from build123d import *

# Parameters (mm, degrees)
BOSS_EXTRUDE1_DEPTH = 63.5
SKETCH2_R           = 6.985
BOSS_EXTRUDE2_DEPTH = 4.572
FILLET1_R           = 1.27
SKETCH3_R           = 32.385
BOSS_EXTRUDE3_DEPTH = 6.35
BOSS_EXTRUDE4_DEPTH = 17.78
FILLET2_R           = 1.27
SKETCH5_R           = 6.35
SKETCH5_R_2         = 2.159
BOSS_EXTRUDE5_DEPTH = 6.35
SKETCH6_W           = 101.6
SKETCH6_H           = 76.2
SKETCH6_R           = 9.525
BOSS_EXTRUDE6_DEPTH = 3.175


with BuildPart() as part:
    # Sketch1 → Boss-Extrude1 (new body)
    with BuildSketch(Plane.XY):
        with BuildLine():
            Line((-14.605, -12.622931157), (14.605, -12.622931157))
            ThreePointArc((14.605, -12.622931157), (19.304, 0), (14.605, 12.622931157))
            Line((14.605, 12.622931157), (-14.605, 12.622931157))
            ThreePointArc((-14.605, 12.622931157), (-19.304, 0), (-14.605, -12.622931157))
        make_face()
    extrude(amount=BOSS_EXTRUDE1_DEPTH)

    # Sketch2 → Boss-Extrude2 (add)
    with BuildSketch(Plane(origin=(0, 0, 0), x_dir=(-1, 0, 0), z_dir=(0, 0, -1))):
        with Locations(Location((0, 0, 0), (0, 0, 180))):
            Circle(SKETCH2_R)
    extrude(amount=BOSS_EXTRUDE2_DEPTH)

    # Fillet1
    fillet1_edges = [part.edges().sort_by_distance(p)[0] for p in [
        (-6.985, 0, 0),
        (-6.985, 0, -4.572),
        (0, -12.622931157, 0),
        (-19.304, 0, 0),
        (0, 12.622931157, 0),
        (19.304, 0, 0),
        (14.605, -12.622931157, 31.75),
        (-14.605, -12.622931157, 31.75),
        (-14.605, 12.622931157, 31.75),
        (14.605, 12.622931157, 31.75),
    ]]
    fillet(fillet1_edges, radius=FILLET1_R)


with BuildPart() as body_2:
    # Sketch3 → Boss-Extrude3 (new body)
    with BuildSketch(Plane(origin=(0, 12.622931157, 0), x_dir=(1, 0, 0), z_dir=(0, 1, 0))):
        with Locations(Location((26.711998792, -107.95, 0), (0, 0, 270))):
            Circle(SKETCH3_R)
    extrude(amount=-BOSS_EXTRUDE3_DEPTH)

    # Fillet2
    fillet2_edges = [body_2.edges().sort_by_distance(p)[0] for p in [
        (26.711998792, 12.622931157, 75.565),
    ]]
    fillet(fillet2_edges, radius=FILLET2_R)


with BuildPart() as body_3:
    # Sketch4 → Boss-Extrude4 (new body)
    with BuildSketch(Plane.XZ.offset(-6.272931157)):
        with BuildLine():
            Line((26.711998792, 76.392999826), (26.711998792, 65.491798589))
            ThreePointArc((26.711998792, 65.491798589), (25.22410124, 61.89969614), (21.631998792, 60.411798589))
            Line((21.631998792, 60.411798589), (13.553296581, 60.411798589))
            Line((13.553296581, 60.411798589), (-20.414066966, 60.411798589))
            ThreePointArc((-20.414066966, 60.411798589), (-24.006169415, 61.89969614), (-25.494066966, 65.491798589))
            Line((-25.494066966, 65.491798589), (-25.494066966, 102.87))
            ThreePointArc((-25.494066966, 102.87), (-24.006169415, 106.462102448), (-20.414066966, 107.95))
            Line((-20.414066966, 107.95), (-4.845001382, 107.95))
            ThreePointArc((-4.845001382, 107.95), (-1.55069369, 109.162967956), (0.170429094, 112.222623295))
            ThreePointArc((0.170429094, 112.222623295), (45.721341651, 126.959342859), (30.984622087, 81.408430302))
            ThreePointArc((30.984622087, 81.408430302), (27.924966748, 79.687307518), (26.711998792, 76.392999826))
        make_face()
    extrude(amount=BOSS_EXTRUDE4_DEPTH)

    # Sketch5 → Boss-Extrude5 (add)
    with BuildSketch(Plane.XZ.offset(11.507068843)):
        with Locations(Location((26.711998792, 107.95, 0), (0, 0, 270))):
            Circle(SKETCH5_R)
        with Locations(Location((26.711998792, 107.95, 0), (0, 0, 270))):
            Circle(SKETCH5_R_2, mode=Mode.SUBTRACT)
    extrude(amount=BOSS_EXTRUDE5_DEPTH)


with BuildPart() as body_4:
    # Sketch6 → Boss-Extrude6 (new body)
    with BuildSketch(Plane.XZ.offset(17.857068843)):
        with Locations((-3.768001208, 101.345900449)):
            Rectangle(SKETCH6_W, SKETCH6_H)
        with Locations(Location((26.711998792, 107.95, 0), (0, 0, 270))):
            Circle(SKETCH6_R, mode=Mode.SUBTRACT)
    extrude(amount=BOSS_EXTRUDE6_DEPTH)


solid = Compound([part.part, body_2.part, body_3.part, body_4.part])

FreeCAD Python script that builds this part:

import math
import FreeCAD as App
import Part
import Sketcher
Q = App.Units.Quantity


def edges_at(feature, points):
    """Names of the edges that pass closest to the given points."""
    edges = feature.Shape.Edges
    near = lambda p: min(range(len(edges)), key=lambda i: edges[i].distToShape(Part.Vertex(*p))[0])
    return sorted({f"Edge{near(p) + 1}" for p in points})

doc = App.newDocument("Part")
body = doc.addObject("PartDesign::Body", "Body")

sketch1 = body.newObject("Sketcher::SketchObject", "Sketch")
sketch1.AttachmentSupport = (doc.getObject("XY_Plane"), [""])
sketch1.MapMode = "FlatFace"
sketch1.addGeometry([
    Part.LineSegment(App.Vector(-15, -13, 0), App.Vector(15, -13, 0)),
    Part.ArcOfCircle(Part.Circle(App.Vector(0, 0, 0), App.Vector(0, 0, 1), 19), math.radians(-41), math.radians(41)),
    Part.LineSegment(App.Vector(15, 13, 0), App.Vector(-15, 13, 0)),
    Part.ArcOfCircle(Part.Circle(App.Vector(0, 0, 0), App.Vector(0, 0, 1), 19), math.radians(139), math.radians(221)),
], False)
sketch1.addConstraint([
    Sketcher.Constraint("Coincident", 0, 2, 1, 1),
    Sketcher.Constraint("Coincident", 1, 2, 2, 1),
    Sketcher.Constraint("Coincident", 2, 2, 3, 1),
    Sketcher.Constraint("Coincident", 3, 2, 0, 1),
    Sketcher.Constraint("Horizontal", 0),
    Sketcher.Constraint("Horizontal", 2),
    Sketcher.Constraint("Coincident", 1, 3, -1, 1),
    Sketcher.Constraint("Coincident", 3, 3, -1, 1),
    Sketcher.Constraint("Equal", 1, 3),
    Sketcher.Constraint("Vertical", 0, 2, 1, 2),
    Sketcher.Constraint("Radius", 1, Q("0.76 in")),
    Sketcher.Constraint("DistanceX", 0, 1, 0, 2, Q("1.15 in")),
])
pad1 = body.newObject("PartDesign::Pad", "Pad")
pad1.Profile = sketch1
pad1.Length = Q("2.5 in")

sketch2 = body.newObject("Sketcher::SketchObject", "Sketch001")
sketch2.AttachmentSupport = (doc.getObject("XY_Plane"), [""])
sketch2.MapMode = "FlatFace"
sketch2.addGeometry(Part.Circle(App.Vector(0, 0, 0), App.Vector(0, 0, 1), 7), False)
sketch2.addConstraint([
    Sketcher.Constraint("Coincident", 0, 3, -1, 1),
    Sketcher.Constraint("Diameter", 0, Q("0.55 in")),
])
pad2 = body.newObject("PartDesign::Pad", "Pad001")
pad2.Profile = sketch2
pad2.Length = Q("0.18 in")
pad2.Reversed = True
doc.recompute()

fillet = body.newObject("PartDesign::Fillet", "Fillet")
fillet.Base = (pad2, edges_at(pad2, [
    (-6.985, 0, 0),
    (-6.985, 0, -4.572),
    (0, -12.623, 0),
    (-19.304, 0, 0),
    (0, 12.623, 0),
    (19.304, 0, 0),
    (14.605, -12.623, 31.75),
    (-14.605, -12.623, 31.75),
    (-14.605, 12.623, 31.75),
    (14.605, 12.623, 31.75),
]))
fillet.Radius = Q("0.05 in")
body2 = doc.addObject("PartDesign::Body", "Body001")

sketch3 = body2.newObject("Sketcher::SketchObject", "Sketch002")
sketch3.AttachmentSupport = (doc.getObject("XZ_Plane001"), [""])
sketch3.MapMode = "FlatFace"
sketch3.AttachmentOffset = App.Placement(App.Vector(0, 0, -12.622931), App.Rotation())
sketch3.addGeometry(Part.Circle(App.Vector(27, 108, 0), App.Vector(0, 0, 1), 32), False)
sketch3.addConstraint([
    Sketcher.Constraint("Diameter", 0, Q("2.55 in")),
    Sketcher.Constraint("DistanceY", -1, 1, 0, 3, Q("4.25 in")),
    Sketcher.Constraint("DistanceX", -1, 1, 0, 3, Q("26.711999 mm")),
])
pad3 = body2.newObject("PartDesign::Pad", "Pad002")
pad3.Profile = sketch3
pad3.Length = Q("0.25 in")
doc.recompute()

fillet2 = body2.newObject("PartDesign::Fillet", "Fillet001")
fillet2.Base = (pad3, edges_at(pad3, [(26.712, 12.623, 75.565)]))
fillet2.Radius = Q("0.05 in")
body3 = doc.addObject("PartDesign::Body", "Body002")

sketch4 = body3.newObject("Sketcher::SketchObject", "Sketch003")
sketch4.AttachmentSupport = (doc.getObject("XZ_Plane002"), [""])
sketch4.MapMode = "FlatFace"
sketch4.AttachmentOffset = App.Placement(App.Vector(0, 0, -6.272931), App.Rotation())
sketch4.addGeometry([
    Part.LineSegment(App.Vector(27, 65, 0), App.Vector(27, 76, 0)),
    Part.ArcOfCircle(Part.Circle(App.Vector(32, 76, 0), App.Vector(0, 0, 1), 5), math.radians(99), math.radians(180)),
    Part.ArcOfCircle(Part.Circle(App.Vector(27, 108, 0), App.Vector(0, 0, 1), 27), math.radians(-81), math.radians(171)),
    Part.ArcOfCircle(Part.Circle(App.Vector(-5, 113, 0), App.Vector(0, 0, 1), 5), math.radians(-90), math.radians(-9)),
    Part.LineSegment(App.Vector(-5, 108, 0), App.Vector(-20, 108, 0)),
    Part.ArcOfCircle(Part.Circle(App.Vector(-20, 103, 0), App.Vector(0, 0, 1), 5), math.radians(90), math.radians(180)),
    Part.LineSegment(App.Vector(-25, 103, 0), App.Vector(-25, 65, 0)),
    Part.ArcOfCircle(Part.Circle(App.Vector(-20, 65, 0), App.Vector(0, 0, 1), 5), math.radians(180), math.radians(270)),
    Part.LineSegment(App.Vector(-20, 60, 0), App.Vector(22, 60, 0)),
    Part.ArcOfCircle(Part.Circle(App.Vector(22, 65, 0), App.Vector(0, 0, 1), 5), math.radians(-90), math.radians(0)),
], False)
sketch4.addConstraint([
    Sketcher.Constraint("Tangent", 0, 2, 1, 2),
    Sketcher.Constraint("Tangent", 1, 1, 2, 1),
    Sketcher.Constraint("Tangent", 2, 2, 3, 2),
    Sketcher.Constraint("Tangent", 3, 1, 4, 1),
    Sketcher.Constraint("Tangent", 4, 2, 5, 1),
    Sketcher.Constraint("Tangent", 5, 2, 6, 1),
    Sketcher.Constraint("Tangent", 6, 2, 7, 1),
    Sketcher.Constraint("Tangent", 7, 2, 8, 1),
    Sketcher.Constraint("Tangent", 8, 2, 9, 1),
    Sketcher.Constraint("Tangent", 9, 2, 0, 1),
    Sketcher.Constraint("Vertical", 0),
    Sketcher.Constraint("Horizontal", 4),
    Sketcher.Constraint("Vertical", 6),
    Sketcher.Constraint("Horizontal", 8),
    Sketcher.Constraint("Equal", 1, 3),
    Sketcher.Constraint("Equal", 3, 5),
    Sketcher.Constraint("Equal", 5, 7),
    Sketcher.Constraint("Equal", 7, 9),
    Sketcher.Constraint("Horizontal", 2, 3, 3, 1),
    Sketcher.Constraint("Vertical", 2, 3, 0, 2),
    Sketcher.Constraint("Radius", 1, Q("0.2 in")),
    Sketcher.Constraint("DistanceY", -1, 1, 2, 3, Q("4.25 in")),
    Sketcher.Constraint("Radius", 2, Q("26.88327 mm")),
    Sketcher.Constraint("DistanceY", 0, 1, 0, 2, Q("10.901201 mm")),
    Sketcher.Constraint("DistanceX", -1, 1, 1, 3, Q("31.791999 mm")),
    Sketcher.Constraint("DistanceX", 4, 2, 4, 1, Q("15.569066 mm")),
])
pad4 = body3.newObject("PartDesign::Pad", "Pad003")
pad4.Profile = sketch4
pad4.Length = Q("0.7 in")

sketch5 = body3.newObject("Sketcher::SketchObject", "Sketch004")
sketch5.AttachmentSupport = (doc.getObject("XZ_Plane002"), [""])
sketch5.MapMode = "FlatFace"
sketch5.AttachmentOffset = App.Placement(App.Vector(0, 0, 11.507069), App.Rotation())
sketch5.addGeometry([
    Part.Circle(App.Vector(26.7, 108, 0), App.Vector(0, 0, 1), 6.3),
    Part.Circle(App.Vector(26.7, 108, 0), App.Vector(0, 0, 1), 2.2),
], False)
sketch5.addConstraint([
    Sketcher.Constraint("Coincident", 1, 3, 0, 3),
    Sketcher.Constraint("Diameter", 0, Q("0.5 in")),
    Sketcher.Constraint("Diameter", 1, Q("0.17 in")),
    Sketcher.Constraint("DistanceY", -1, 1, 0, 3, Q("4.25 in")),
    Sketcher.Constraint("DistanceX", -1, 1, 0, 3, Q("26.711999 mm")),
])
pad5 = body3.newObject("PartDesign::Pad", "Pad004")
pad5.Profile = sketch5
pad5.Length = Q("0.25 in")
body4 = doc.addObject("PartDesign::Body", "Body003")

sketch6 = body4.newObject("Sketcher::SketchObject", "Sketch005")
sketch6.AttachmentSupport = (doc.getObject("XZ_Plane003"), [""])
sketch6.MapMode = "FlatFace"
sketch6.AttachmentOffset = App.Placement(App.Vector(0, 0, 17.857069), App.Rotation())
sketch6.addGeometry([
    Part.LineSegment(App.Vector(-55, 139, 0), App.Vector(-55, 63, 0)),
    Part.LineSegment(App.Vector(-55, 63, 0), App.Vector(47, 63, 0)),
    Part.LineSegment(App.Vector(47, 63, 0), App.Vector(47, 139, 0)),
    Part.LineSegment(App.Vector(47, 139, 0), App.Vector(-55, 139, 0)),
    Part.Circle(App.Vector(27, 108, 0), App.Vector(0, 0, 1), 10),
], False)
sketch6.addConstraint([
    Sketcher.Constraint("Coincident", 0, 2, 1, 1),
    Sketcher.Constraint("Coincident", 1, 2, 2, 1),
    Sketcher.Constraint("Coincident", 2, 2, 3, 1),
    Sketcher.Constraint("Coincident", 3, 2, 0, 1),
    Sketcher.Constraint("Vertical", 0),
    Sketcher.Constraint("Horizontal", 1),
    Sketcher.Constraint("Vertical", 2),
    Sketcher.Constraint("Horizontal", 3),
    Sketcher.Constraint("Diameter", 4, Q("0.75 in")),
    Sketcher.Constraint("DistanceX", 1, 1, 1, 2, Q("4 in")),
    Sketcher.Constraint("DistanceY", 0, 2, 0, 1, Q("3 in")),
    Sketcher.Constraint("DistanceX", 0, 2, 4, 3, Q("3.2 in")),
    Sketcher.Constraint("DistanceY", -1, 1, 4, 3, Q("4.25 in")),
    Sketcher.Constraint("DistanceX", -1, 1, 4, 3, Q("26.711999 mm")),
    Sketcher.Constraint("DistanceY", -1, 1, 0, 2, Q("63.2459 mm")),
])
pad6 = body4.newObject("PartDesign::Pad", "Pad005")
pad6.Profile = sketch6
pad6.Length = Q("0.125 in")

doc.recompute()
